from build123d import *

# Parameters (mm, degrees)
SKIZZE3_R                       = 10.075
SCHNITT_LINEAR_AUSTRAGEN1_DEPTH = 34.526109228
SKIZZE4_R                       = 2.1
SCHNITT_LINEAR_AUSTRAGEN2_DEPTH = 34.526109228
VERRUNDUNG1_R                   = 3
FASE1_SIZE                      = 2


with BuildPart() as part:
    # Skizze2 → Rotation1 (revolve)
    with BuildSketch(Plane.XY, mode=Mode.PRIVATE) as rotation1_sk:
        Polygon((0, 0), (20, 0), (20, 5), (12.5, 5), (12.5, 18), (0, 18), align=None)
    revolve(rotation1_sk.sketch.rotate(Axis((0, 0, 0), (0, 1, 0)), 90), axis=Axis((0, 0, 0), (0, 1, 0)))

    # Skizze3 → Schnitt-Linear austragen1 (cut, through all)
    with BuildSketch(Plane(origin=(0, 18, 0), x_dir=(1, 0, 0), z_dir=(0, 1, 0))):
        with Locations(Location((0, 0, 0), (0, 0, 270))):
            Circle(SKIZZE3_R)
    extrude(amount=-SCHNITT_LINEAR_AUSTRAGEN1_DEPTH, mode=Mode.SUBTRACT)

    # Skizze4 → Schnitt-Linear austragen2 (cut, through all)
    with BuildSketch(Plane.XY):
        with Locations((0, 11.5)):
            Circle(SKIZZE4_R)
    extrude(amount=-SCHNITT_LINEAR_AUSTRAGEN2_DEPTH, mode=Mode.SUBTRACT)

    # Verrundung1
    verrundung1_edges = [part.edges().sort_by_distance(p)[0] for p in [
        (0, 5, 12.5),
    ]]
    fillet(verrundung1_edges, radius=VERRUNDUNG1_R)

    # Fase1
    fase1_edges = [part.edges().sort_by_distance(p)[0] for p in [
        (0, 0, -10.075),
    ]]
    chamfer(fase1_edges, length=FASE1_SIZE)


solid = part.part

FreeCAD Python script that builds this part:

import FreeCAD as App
import Part
import Sketcher
from FreeCAD import Vector


def edges_at(feature, points):
    """Names of the edges that pass closest to the given points."""
    edges = feature.Shape.Edges
    near = lambda p: min(range(len(edges)), key=lambda i: edges[i].distToShape(Part.Vertex(*p))[0])
    return sorted({f"Edge{near(p) + 1}" for p in points})

doc = App.newDocument("Part")
body = doc.addObject("PartDesign::Body", "Body")

sketch1 = doc.addObject("Sketcher::SketchObject", "Sketch")
body.addObject(sketch1)
sketch1.AttachmentSupport = (doc.XY_Plane, [""])
sketch1.MapMode = "FlatFace"
sketch1.addGeometry([
    Part.LineSegment(Vector(0, 0, 0), Vector(20, 0, 0)),
    Part.LineSegment(Vector(20, 0, 0), Vector(20, 5, 0)),
    Part.LineSegment(Vector(20, 5, 0), Vector(12, 5, 0)),
    Part.LineSegment(Vector(12, 5, 0), Vector(12, 18, 0)),
    Part.LineSegment(Vector(12, 18, 0), Vector(0, 18, 0)),
    Part.LineSegment(Vector(0, 18, 0), Vector(0, 0, 0)),
], False)
sketch1.addConstraint([
    Sketcher.Constraint("Coincident", 0, 2, 1, 1),
    Sketcher.Constraint("Coincident", 1, 2, 2, 1),
    Sketcher.Constraint("Coincident", 2, 2, 3, 1),
    Sketcher.Constraint("Coincident", 3, 2, 4, 1),
    Sketcher.Constraint("Coincident", 4, 2, 5, 1),
    Sketcher.Constraint("Coincident", 5, 2, 0, 1),
    Sketcher.Constraint("Horizontal", 0),
    Sketcher.Constraint("Vertical", 1),
    Sketcher.Constraint("Horizontal", 2),
    Sketcher.Constraint("Vertical", 3),
    Sketcher.Constraint("Horizontal", 4),
    Sketcher.Constraint("Vertical", 5),
    Sketcher.Constraint("Coincident", 5, 2, -1, 1),
    Sketcher.Constraint("DistanceX", 0, 1, 0, 2, 20.0),
    Sketcher.Constraint("DistanceY", 1, 1, 1, 2, 5.0),
    Sketcher.Constraint("DistanceY", 3, 1, 3, 2, 13.0),
    Sketcher.Constraint("DistanceX", 2, 2, 2, 1, 7.5),
])
revolution = doc.addObject("PartDesign::Revolution", "Revolution")
body.addObject(revolution)
revolution.Profile = sketch1
revolution.ReferenceAxis = (sketch1, ["V_Axis"])
revolution.Angle = 360

sketch2 = doc.addObject("Sketcher::SketchObject", "Sketch001")
body.addObject(sketch2)
sketch2.AttachmentSupport = (doc.XZ_Plane, [""])
sketch2.MapMode = "FlatFace"
sketch2.AttachmentOffset = App.Placement(Vector(0, 0, -18), App.Rotation())
sketch2.addGeometry(Part.Circle(Vector(0, 0, 0), Vector(0, 0, 1), 10), False)
sketch2.addConstraint([
    Sketcher.Constraint("Coincident", 0, 3, -1, 1),
    Sketcher.Constraint("Diameter", 0, 20.15),
])
pocket1 = doc.addObject("PartDesign::Pocket", "Pocket")
body.addObject(pocket1)
pocket1.Profile = sketch2
pocket1.Type = "ThroughAll"
pocket1.Reversed = True

sketch3 = doc.addObject("Sketcher::SketchObject", "Sketch002")
body.addObject(sketch3)
sketch3.AttachmentSupport = (doc.XY_Plane, [""])
sketch3.MapMode = "FlatFace"
sketch3.addGeometry(Part.Circle(Vector(0, 11.5, 0), Vector(0, 0, 1), 2.1), False)
sketch3.addConstraint([
    Sketcher.Constraint("PointOnObject", 0, 3, -2),
    Sketcher.Constraint("Diameter", 0, 4.2),
    Sketcher.Constraint("DistanceY", -1, 1, 0, 3, 11.5),
])
pocket2 = doc.addObject("PartDesign::Pocket", "Pocket001")
body.addObject(pocket2)
pocket2.Profile = sketch3
pocket2.Type = "ThroughAll"
doc.recompute()

fillet = doc.addObject("PartDesign::Fillet", "Fillet")
body.addObject(fillet)
fillet.Base = (pocket2, edges_at(pocket2, [(0, 5, 12.5)]))
fillet.Radius = 3
doc.recompute()

chamfer = doc.addObject("PartDesign::Chamfer", "Chamfer")
body.addObject(chamfer)
chamfer.Base = (fillet, edges_at(fillet, [(0, 0, -10.075)]))
chamfer.Size = 2

doc.recompute()
